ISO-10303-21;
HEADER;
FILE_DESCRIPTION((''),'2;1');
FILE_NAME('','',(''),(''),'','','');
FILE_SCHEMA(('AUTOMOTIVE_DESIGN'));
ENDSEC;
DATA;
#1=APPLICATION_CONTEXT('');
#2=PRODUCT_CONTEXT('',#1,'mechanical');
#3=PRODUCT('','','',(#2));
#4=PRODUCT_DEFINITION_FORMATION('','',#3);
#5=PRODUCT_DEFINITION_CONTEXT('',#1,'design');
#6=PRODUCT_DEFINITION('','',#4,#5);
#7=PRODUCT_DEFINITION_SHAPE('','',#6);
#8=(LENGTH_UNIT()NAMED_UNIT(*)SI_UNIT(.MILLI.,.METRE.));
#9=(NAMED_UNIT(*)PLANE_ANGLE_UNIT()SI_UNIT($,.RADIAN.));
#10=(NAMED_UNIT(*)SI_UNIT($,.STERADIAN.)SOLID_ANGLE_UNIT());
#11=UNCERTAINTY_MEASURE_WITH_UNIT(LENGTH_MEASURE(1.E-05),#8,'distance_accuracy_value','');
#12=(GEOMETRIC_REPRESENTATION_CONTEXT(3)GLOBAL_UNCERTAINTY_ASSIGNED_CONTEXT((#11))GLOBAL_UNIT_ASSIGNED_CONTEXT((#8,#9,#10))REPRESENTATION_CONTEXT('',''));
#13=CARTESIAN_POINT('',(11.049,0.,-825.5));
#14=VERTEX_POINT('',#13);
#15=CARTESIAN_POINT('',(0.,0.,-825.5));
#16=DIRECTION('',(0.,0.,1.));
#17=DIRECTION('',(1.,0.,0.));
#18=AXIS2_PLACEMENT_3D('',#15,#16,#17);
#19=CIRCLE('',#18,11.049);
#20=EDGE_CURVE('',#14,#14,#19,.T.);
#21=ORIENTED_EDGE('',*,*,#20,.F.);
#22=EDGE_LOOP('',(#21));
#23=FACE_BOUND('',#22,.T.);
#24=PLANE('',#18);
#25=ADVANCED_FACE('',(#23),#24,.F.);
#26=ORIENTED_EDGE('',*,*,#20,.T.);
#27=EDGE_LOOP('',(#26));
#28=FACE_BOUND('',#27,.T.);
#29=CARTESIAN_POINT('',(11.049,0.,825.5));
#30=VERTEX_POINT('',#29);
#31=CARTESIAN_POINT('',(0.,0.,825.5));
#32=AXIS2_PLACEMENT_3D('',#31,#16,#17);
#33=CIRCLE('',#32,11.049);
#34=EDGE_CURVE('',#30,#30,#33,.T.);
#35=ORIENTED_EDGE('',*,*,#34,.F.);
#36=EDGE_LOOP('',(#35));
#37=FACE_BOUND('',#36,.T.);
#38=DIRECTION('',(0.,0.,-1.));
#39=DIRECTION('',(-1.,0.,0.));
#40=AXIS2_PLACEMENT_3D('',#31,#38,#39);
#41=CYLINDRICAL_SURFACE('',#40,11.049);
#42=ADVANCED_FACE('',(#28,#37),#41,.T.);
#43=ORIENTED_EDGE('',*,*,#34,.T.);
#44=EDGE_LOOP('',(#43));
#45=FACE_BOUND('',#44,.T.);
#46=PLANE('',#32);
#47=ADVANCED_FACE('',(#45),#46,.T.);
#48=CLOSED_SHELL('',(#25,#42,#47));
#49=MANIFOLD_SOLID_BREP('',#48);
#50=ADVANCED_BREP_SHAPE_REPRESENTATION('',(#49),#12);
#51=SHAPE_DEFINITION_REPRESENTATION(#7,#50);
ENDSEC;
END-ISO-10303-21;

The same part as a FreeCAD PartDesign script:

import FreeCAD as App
import Part
import Sketcher

V = App.Vector
Q = App.Units.Quantity

doc = App.newDocument("Part")
body = doc.addObject("PartDesign::Body", "Body")

sketch1 = doc.addObject("Sketcher::SketchObject", "Sketch")
body.addObject(sketch1)
sketch1.AttachmentSupport = (doc.XY_Plane, [""])
sketch1.MapMode = "FlatFace"
sketch1.addGeometry(Part.Circle(V(0, 0, 0), V(0, 0, 1), 11), False)
sketch1.addConstraint(Sketcher.Constraint("Coincident", 0, 3, -1, 1))
sketch1.addConstraint(Sketcher.Constraint("Diameter", 0, Q("0.87 in")))
pad1 = doc.addObject("PartDesign::Pad", "Pad")
body.addObject(pad1)
pad1.Profile = sketch1
pad1.Length = Q("65 in")
pad1.Midplane = True

doc.recompute()
